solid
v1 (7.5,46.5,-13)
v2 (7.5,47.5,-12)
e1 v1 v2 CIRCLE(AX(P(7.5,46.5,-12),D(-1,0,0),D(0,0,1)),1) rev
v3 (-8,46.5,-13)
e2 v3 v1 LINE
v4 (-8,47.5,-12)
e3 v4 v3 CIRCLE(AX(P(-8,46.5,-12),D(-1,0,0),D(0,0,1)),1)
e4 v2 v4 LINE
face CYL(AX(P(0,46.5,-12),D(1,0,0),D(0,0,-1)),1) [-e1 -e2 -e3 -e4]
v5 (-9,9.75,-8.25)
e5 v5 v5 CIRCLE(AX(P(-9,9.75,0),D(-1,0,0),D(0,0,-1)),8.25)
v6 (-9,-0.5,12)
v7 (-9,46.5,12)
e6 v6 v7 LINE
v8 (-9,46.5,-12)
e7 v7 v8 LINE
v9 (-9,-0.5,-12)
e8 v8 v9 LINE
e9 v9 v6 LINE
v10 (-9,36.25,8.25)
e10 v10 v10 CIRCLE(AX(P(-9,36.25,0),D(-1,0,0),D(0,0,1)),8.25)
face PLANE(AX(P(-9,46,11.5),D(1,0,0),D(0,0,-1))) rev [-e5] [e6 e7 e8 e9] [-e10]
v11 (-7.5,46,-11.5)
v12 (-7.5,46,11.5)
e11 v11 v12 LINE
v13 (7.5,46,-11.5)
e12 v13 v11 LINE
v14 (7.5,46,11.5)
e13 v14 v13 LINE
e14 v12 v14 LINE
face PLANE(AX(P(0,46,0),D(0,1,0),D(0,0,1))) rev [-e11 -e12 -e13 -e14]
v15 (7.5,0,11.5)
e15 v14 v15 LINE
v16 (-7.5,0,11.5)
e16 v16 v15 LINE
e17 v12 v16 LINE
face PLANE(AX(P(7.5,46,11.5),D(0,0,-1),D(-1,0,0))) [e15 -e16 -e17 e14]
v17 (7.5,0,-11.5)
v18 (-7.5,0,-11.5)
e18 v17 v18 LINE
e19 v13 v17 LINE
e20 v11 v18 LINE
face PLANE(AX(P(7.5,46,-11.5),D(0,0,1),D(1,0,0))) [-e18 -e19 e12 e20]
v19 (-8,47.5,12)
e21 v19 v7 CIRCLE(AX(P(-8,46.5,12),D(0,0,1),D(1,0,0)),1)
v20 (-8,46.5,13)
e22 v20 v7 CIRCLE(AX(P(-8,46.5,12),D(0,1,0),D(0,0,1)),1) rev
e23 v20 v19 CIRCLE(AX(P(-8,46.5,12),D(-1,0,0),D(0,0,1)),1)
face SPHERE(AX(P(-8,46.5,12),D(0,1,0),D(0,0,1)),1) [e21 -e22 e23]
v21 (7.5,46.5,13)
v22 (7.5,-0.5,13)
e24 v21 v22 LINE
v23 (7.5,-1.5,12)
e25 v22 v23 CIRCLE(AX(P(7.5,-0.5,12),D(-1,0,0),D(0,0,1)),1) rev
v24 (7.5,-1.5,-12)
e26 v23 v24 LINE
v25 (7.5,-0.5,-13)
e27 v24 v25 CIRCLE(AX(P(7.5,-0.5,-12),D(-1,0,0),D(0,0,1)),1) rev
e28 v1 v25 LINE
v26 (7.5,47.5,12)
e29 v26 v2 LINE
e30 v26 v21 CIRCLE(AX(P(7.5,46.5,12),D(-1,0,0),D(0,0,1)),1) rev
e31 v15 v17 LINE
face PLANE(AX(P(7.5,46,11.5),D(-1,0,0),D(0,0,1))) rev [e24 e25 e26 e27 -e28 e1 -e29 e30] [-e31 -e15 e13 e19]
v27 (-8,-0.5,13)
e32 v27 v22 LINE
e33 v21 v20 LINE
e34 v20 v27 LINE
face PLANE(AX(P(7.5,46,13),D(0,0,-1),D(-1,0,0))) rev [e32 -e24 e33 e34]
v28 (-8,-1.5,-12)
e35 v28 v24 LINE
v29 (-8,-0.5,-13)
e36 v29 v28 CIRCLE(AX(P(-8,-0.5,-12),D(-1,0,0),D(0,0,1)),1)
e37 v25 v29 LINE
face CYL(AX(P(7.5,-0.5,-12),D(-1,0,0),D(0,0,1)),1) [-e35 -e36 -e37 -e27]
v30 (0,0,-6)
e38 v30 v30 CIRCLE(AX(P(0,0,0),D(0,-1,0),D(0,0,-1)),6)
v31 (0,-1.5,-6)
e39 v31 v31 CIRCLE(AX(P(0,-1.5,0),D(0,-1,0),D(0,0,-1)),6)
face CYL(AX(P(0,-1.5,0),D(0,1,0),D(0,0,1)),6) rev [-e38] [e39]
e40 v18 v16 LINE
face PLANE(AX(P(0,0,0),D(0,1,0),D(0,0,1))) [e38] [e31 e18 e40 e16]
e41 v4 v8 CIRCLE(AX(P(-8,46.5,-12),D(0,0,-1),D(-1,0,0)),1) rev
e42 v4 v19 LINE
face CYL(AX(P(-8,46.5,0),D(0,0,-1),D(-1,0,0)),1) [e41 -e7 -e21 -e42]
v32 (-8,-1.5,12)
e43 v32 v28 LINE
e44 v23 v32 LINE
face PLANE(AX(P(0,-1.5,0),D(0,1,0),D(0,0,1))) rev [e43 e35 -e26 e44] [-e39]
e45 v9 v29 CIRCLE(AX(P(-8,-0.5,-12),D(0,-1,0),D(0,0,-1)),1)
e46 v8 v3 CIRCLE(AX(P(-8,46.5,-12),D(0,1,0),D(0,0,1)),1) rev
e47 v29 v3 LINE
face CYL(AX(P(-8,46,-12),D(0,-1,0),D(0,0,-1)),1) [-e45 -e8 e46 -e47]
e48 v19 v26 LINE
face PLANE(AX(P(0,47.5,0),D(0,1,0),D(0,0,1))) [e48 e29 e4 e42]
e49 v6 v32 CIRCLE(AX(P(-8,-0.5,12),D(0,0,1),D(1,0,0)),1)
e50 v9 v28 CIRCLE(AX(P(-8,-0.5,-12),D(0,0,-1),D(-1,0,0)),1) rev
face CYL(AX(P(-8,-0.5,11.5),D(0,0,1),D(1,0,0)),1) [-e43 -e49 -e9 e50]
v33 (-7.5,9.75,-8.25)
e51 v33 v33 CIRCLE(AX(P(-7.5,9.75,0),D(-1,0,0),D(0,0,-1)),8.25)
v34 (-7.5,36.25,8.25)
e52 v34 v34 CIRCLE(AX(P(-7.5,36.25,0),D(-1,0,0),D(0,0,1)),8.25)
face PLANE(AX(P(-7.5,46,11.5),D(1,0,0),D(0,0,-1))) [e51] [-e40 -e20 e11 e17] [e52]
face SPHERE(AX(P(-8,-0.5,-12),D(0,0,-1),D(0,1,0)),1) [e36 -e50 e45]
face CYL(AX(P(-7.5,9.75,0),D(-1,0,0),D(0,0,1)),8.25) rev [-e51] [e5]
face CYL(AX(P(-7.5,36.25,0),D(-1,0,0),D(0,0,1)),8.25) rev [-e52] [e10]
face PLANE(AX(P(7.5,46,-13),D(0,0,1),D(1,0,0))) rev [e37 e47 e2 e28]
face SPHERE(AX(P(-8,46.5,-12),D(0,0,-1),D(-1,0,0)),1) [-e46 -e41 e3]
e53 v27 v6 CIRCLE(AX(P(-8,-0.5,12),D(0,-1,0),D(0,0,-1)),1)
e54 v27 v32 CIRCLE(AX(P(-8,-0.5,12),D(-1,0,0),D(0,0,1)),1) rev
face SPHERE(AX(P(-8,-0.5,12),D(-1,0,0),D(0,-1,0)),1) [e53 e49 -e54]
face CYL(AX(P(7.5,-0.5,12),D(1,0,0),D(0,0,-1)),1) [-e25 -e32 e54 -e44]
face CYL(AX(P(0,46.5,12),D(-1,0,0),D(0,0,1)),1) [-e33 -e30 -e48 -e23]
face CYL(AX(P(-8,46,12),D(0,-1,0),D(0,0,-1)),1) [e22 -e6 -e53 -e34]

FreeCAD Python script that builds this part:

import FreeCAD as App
import Part
import Sketcher

V = App.Vector


def edges_at(feature, points):
    """Names of the edges that pass closest to the given points."""
    edges = feature.Shape.Edges
    near = lambda p: min(range(len(edges)), key=lambda i: edges[i].distToShape(Part.Vertex(*p))[0])
    return sorted({f"Edge{near(p) + 1}" for p in points})


def faces_at(feature, points):
    """Names of the faces that lie closest to the given points."""
    faces = feature.Shape.Faces
    near = lambda p: min(range(len(faces)), key=lambda i: faces[i].distToShape(Part.Vertex(*p))[0])
    return sorted({f"Face{near(p) + 1}" for p in points})


def add_polygon(sketch, points):
    """Adds a closed chain of lines whose ends are joined by coincident constraints."""
    first, n = sketch.GeometryCount, len(points)
    for a, b in zip(points, points[1:] + points[:1]):
        sketch.addGeometry(Part.LineSegment(App.Vector(*a, 0), App.Vector(*b, 0)), False)
    for i in range(n):
        sketch.addConstraint(Sketcher.Constraint("Coincident", first + i, 2, first + (i + 1) % n, 1))

doc = App.newDocument("Part")
body = doc.addObject("PartDesign::Body", "Body")

# Sketch on XZ plane
sketch1 = doc.addObject("Sketcher::SketchObject", "Sketch")
body.addObject(sketch1)
sketch1.AttachmentSupport = (doc.XZ_Plane, [""])
sketch1.MapMode = "FlatFace"
add_polygon(sketch1, [(-8, -12), (-8, 12), (8, 12), (8, -12)])  # lines 0-3
sketch1.addConstraint(Sketcher.Constraint("Vertical", 0))
sketch1.addConstraint(Sketcher.Constraint("Horizontal", 1))
sketch1.addConstraint(Sketcher.Constraint("Vertical", 2))
sketch1.addConstraint(Sketcher.Constraint("Horizontal", 3))
sketch1.addConstraint(Sketcher.Constraint("Symmetric", 0, 2, 2, 2, -1, 1))
sketch1.addConstraint(Sketcher.Constraint("DistanceX", 1, 1, 1, 2, 15.0))
sketch1.addConstraint(Sketcher.Constraint("DistanceY", 0, 1, 0, 2, 23.0))
pad1 = doc.addObject("PartDesign::Pad", "Pad")
body.addObject(pad1)
pad1.Profile = sketch1
pad1.Length = 46
pad1.Reversed = True
doc.recompute()

thickness = doc.addObject("PartDesign::Thickness", "Thickness")
body.addObject(thickness)
thickness.Base = (pad1, faces_at(pad1, [(7.5, 23, 0)]))
thickness.Value = 1.5
thickness.Reversed = False
thickness.Join = "Intersection"

# Sketch on XZ plane
sketch2 = doc.addObject("Sketcher::SketchObject", "Sketch001")
body.addObject(sketch2)
sketch2.AttachmentSupport = (doc.XZ_Plane, [""])
sketch2.MapMode = "FlatFace"
sketch2.addGeometry(Part.Circle(V(0, 0, 0), V(0, 0, 1), 6), False)
sketch2.addConstraint(Sketcher.Constraint("Coincident", 0, 3, -1, 1))
sketch2.addConstraint(Sketcher.Constraint("Diameter", 0, 12.0))
pocket1 = doc.addObject("PartDesign::Pocket", "Pocket")
body.addObject(pocket1)
pocket1.Profile = sketch2
pocket1.Length = 1.5
pocket1.Reversed = True

# Sketch on YZ plane
sketch3 = doc.addObject("Sketcher::SketchObject", "Sketch002")
body.addObject(sketch3)
sketch3.AttachmentSupport = (doc.YZ_Plane, [""])
sketch3.MapMode = "FlatFace"
sketch3.AttachmentOffset = App.Placement(V(0, 0, -9), App.Rotation())
sketch3.addGeometry(Part.Circle(V(36, 0, 0), V(0, 0, 1), 8), False)
sketch3.addGeometry(Part.Circle(V(10, 0, 0), V(0, 0, 1), 8), False)
sketch3.addConstraint(Sketcher.Constraint("Equal", 0, 1))
sketch3.addConstraint(Sketcher.Constraint("PointOnObject", 0, 3, -1))
sketch3.addConstraint(Sketcher.Constraint("PointOnObject", 1, 3, -1))
sketch3.addConstraint(Sketcher.Constraint("Diameter", 0, 16.5))
sketch3.addConstraint(Sketcher.Constraint("DistanceX", 1, 3, 0, 3, 26.5))
sketch3.addConstraint(Sketcher.Constraint("DistanceX", -1, 1, 0, 3, 36.25))
pocket2 = doc.addObject("PartDesign::Pocket", "Pocket001")
body.addObject(pocket2)
pocket2.Profile = sketch3
pocket2.Length = 1.5
pocket2.Reversed = True
doc.recompute()

fillet = doc.addObject("PartDesign::Fillet", "Fillet")
body.addObject(fillet)
fillet.Base = (pocket2, edges_at(pocket2, [
    (-0.75, 47.5, -13),
    (-9, 47.5, 0),
    (-0.75, -1.5, -13),
    (-0.75, -1.5, 13),
    (-9, -1.5, 0),
    (-9, 23, -13),
    (-9, 23, 13),
    (-0.75, 47.5, 13),
]))
fillet.Radius = 1

doc.recompute()
